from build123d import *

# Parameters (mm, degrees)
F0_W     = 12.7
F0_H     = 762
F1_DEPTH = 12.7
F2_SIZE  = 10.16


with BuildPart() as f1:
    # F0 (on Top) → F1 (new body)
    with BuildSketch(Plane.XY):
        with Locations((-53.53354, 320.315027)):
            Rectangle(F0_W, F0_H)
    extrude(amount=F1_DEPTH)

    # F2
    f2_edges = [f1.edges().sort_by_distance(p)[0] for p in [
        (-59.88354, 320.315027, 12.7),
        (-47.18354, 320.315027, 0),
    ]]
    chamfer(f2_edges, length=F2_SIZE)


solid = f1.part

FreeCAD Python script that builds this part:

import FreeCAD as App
import Part
import Sketcher
Q = App.Units.Quantity


def edges_at(feature, points):
    """Names of the edges that pass closest to the given points."""
    edges = feature.Shape.Edges
    near = lambda p: min(range(len(edges)), key=lambda i: edges[i].distToShape(Part.Vertex(*p))[0])
    return sorted({f"Edge{near(p) + 1}" for p in points})


def add_polygon(sketch, points):
    """Adds a closed chain of lines whose ends are joined by coincident constraints."""
    first, n = sketch.GeometryCount, len(points)
    for a, b in zip(points, points[1:] + points[:1]):
        sketch.addGeometry(Part.LineSegment(App.Vector(*a, 0), App.Vector(*b, 0)), False)
    for i in range(n):
        sketch.addConstraint(Sketcher.Constraint("Coincident", first + i, 2, first + (i + 1) % n, 1))

doc = App.newDocument("Part")
body = doc.addObject("PartDesign::Body", "Body")

sketch1 = doc.addObject("Sketcher::SketchObject", "Sketch")
body.addObject(sketch1)
sketch1.AttachmentSupport = (doc.XY_Plane, [""])
sketch1.MapMode = "FlatFace"
add_polygon(sketch1, [(-60, 701), (-60, -61), (-47, -61), (-47, 701)])
sketch1.addConstraint(Sketcher.Constraint("Vertical", 0))
sketch1.addConstraint(Sketcher.Constraint("Horizontal", 1))
sketch1.addConstraint(Sketcher.Constraint("Vertical", 2))
sketch1.addConstraint(Sketcher.Constraint("Horizontal", 3))
sketch1.addConstraint(Sketcher.Constraint("DistanceY", 0, 2, 0, 1, Q("30 in")))
sketch1.addConstraint(Sketcher.Constraint("DistanceX", 1, 1, 1, 2, Q("0.5 in")))
sketch1.addConstraint(Sketcher.Constraint("DistanceX", 0, 2, -1, 1, 59.88354))
sketch1.addConstraint(Sketcher.Constraint("DistanceY", 0, 2, -1, 1, 60.684973))
pad1 = doc.addObject("PartDesign::Pad", "Pad")
body.addObject(pad1)
pad1.Profile = sketch1
pad1.Length = Q("0.5 in")
doc.recompute()

chamfer = doc.addObject("PartDesign::Chamfer", "Chamfer")
body.addObject(chamfer)
chamfer.Base = (pad1, edges_at(pad1, [(-59.884, 320.315, 12.7), (-47.184, 320.315, 0)]))
chamfer.Size = Q("0.4 in")

doc.recompute()
